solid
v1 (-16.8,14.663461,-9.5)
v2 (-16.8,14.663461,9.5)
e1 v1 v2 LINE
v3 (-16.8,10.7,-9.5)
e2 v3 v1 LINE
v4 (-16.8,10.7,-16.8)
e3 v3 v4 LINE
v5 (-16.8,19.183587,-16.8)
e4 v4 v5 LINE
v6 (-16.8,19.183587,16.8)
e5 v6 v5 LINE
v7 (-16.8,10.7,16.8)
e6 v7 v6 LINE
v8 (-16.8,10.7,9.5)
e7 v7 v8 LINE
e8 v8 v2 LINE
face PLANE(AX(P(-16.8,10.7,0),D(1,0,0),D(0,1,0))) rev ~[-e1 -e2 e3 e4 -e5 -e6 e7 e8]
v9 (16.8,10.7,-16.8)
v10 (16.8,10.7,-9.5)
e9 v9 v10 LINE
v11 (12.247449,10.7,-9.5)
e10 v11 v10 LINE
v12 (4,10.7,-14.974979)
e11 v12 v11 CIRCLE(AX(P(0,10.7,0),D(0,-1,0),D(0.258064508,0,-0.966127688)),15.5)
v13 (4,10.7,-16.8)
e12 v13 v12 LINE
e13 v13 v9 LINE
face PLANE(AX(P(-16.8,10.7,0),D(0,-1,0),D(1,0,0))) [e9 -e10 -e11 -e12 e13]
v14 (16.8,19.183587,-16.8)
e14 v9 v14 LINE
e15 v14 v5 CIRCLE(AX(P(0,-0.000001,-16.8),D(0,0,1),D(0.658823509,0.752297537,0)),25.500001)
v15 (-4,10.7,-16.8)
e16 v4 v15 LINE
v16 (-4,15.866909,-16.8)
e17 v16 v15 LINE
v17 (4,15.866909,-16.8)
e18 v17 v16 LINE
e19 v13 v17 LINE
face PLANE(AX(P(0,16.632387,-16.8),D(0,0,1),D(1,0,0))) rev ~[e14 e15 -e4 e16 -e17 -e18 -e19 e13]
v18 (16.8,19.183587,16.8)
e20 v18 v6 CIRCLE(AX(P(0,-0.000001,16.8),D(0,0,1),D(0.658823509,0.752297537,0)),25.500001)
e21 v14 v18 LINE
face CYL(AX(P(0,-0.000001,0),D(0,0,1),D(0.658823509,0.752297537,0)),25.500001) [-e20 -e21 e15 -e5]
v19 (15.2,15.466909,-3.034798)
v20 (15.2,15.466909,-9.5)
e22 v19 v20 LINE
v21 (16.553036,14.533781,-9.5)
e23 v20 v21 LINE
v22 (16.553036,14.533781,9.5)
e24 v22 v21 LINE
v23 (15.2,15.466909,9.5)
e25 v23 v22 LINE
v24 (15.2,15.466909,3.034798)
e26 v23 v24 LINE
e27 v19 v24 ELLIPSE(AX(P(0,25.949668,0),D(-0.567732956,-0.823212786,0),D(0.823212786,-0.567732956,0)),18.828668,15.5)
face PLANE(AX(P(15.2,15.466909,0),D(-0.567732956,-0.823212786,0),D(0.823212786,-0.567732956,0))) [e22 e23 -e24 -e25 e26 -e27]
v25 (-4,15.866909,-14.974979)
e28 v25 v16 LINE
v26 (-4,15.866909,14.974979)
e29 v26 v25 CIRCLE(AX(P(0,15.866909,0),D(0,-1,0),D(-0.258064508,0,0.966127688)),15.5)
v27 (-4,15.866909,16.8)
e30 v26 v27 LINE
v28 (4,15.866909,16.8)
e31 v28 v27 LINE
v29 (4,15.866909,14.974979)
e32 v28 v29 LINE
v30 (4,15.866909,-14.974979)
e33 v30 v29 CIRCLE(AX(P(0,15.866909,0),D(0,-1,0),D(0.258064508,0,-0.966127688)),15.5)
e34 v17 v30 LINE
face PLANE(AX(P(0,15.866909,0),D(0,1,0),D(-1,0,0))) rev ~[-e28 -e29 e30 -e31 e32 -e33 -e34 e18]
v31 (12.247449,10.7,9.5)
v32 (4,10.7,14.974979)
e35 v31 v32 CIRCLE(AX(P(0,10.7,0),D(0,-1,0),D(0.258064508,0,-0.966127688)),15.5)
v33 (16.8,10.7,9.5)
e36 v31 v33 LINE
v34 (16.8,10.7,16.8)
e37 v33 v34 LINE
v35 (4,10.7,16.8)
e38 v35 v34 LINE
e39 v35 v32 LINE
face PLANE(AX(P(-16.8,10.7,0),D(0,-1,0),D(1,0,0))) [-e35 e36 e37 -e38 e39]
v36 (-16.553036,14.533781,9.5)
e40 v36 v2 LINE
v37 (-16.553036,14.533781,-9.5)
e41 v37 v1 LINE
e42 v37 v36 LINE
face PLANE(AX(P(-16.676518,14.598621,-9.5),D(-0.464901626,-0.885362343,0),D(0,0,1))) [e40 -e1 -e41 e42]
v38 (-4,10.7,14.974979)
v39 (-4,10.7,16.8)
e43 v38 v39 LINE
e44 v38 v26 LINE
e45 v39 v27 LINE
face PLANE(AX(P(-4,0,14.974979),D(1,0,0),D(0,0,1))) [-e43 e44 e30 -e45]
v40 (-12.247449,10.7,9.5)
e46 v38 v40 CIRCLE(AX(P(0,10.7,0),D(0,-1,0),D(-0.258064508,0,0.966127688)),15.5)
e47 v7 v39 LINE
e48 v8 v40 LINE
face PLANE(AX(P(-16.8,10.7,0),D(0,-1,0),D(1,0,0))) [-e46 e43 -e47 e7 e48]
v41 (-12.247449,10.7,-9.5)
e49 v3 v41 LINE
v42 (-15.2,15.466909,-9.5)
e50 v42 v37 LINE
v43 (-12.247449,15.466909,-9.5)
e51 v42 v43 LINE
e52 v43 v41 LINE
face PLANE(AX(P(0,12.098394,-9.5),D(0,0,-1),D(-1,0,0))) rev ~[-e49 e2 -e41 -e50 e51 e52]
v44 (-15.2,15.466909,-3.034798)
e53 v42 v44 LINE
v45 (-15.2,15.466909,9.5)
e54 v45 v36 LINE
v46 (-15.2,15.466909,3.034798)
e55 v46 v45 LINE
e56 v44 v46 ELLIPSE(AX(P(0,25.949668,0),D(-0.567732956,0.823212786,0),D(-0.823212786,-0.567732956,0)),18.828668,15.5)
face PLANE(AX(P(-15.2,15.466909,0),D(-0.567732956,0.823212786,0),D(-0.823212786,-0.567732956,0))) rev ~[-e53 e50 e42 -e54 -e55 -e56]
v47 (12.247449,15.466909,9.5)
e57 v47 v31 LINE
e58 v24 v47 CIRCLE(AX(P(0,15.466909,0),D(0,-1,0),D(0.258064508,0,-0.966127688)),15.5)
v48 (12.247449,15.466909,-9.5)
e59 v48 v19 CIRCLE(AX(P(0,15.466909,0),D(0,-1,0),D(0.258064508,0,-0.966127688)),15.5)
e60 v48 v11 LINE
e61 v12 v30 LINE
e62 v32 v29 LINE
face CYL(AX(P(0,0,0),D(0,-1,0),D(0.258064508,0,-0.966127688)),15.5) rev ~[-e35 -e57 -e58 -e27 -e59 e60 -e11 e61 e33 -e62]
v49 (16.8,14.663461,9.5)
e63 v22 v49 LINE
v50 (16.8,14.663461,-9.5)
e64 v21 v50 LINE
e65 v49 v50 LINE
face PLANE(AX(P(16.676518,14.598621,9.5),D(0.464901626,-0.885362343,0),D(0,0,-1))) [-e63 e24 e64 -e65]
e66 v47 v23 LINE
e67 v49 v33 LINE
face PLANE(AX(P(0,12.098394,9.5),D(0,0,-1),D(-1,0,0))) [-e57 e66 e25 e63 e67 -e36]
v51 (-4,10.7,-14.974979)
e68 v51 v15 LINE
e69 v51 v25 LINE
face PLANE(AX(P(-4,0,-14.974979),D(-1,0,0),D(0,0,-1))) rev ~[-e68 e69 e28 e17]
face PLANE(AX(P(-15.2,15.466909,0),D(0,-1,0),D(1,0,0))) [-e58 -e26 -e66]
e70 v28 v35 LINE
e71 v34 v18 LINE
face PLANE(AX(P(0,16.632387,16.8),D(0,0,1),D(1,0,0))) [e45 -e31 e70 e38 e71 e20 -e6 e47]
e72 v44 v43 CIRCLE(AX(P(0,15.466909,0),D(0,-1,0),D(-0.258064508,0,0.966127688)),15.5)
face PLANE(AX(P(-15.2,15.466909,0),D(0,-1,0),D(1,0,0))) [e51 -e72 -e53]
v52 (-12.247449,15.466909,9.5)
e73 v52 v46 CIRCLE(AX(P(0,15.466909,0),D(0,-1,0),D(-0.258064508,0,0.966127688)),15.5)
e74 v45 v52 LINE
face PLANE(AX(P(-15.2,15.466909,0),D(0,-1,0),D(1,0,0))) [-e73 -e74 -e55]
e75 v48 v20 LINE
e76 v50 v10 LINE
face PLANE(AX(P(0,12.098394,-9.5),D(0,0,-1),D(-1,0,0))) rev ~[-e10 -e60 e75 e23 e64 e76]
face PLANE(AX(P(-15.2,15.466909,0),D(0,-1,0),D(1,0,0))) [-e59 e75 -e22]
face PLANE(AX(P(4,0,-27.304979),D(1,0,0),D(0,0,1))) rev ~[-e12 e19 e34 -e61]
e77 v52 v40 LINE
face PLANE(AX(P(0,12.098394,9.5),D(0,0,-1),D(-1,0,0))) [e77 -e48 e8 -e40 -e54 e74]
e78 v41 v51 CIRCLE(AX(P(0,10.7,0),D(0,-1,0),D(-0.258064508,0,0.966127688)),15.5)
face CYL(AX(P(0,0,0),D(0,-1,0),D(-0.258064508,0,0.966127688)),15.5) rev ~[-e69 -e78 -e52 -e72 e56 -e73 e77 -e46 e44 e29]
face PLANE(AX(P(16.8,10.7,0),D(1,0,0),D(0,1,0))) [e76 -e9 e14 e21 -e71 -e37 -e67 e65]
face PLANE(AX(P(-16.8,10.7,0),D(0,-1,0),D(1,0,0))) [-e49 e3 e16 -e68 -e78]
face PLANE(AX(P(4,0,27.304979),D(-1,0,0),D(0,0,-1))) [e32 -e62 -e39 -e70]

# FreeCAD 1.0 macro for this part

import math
import FreeCAD as App
import Part
import Sketcher
Q = App.Units.Quantity


def edges_at(feature, points):
    """Names of the edges that pass closest to the given points."""
    edges = feature.Shape.Edges
    near = lambda p: min(range(len(edges)), key=lambda i: edges[i].distToShape(Part.Vertex(*p))[0])
    return sorted({f"Edge{near(p) + 1}" for p in points})

doc = App.newDocument("Part")
body = doc.addObject("PartDesign::Body", "Body")

sketch1 = body.newObject("Sketcher::SketchObject", "Sketch")
sketch1.AttachmentSupport = (doc.getObject("XY_Plane"), [""])
sketch1.MapMode = "FlatFace"
sketch1.addGeometry([
    Part.LineSegment(App.Vector(-17, 11, 0), App.Vector(17, 11, 0)),
    Part.LineSegment(App.Vector(17, 11, 0), App.Vector(17, 19, 0)),
    Part.ArcOfCircle(Part.Circle(App.Vector(0, 0, 0), App.Vector(0, 0, 1), 26), math.radians(49), math.radians(131)),
    Part.LineSegment(App.Vector(-17, 19, 0), App.Vector(-17, 11, 0)),
], False)
sketch1.addConstraint([
    Sketcher.Constraint("Coincident", 0, 2, 1, 1),
    Sketcher.Constraint("Coincident", 1, 2, 2, 1),
    Sketcher.Constraint("Coincident", 2, 2, 3, 1),
    Sketcher.Constraint("Coincident", 3, 2, 0, 1),
    Sketcher.Constraint("Horizontal", 0),
    Sketcher.Constraint("Vertical", 1),
    Sketcher.Constraint("Vertical", 3),
    Sketcher.Constraint("Coincident", 2, 3, -1, 1),
    Sketcher.Constraint("Horizontal", 1, 2, 2, 2),
    Sketcher.Constraint("Radius", 2, Q("25.500001 mm")),
    Sketcher.Constraint("DistanceX", 0, 1, 0, 2, Q("33.6 mm")),
    Sketcher.Constraint("DistanceY", -1, 1, 0, 2, Q("10.7 mm")),
])
pad1 = body.newObject("PartDesign::Pad", "Pad")
pad1.Profile = sketch1
pad1.Type = "TwoLengths"
pad1.Length = 16.8
pad1.Length2 = 16.8

sketch2 = body.newObject("Sketcher::SketchObject", "Sketch001")
sketch2.AttachmentSupport = (doc.getObject("XY_Plane"), [""])
sketch2.MapMode = "FlatFace"
sketch2.addGeometry([
    Part.LineSegment(App.Vector(15.2, 15.466909, 0), App.Vector(-15.2, 15.466909, 0)),
    Part.LineSegment(App.Vector(-15.2, 15.466909, 0), App.Vector(-21, 11.466909, 0)),
    Part.LineSegment(App.Vector(-21, 11.466909, 0), App.Vector(-23, 11.466909, 0)),
    Part.ArcOfCircle(Part.Circle(App.Vector(-0.000205, 0.00009, 0), App.Vector(0, 0, 1), 25.699776), math.radians(153.500908), math.radians(160.764538)),
    Part.LineSegment(App.Vector(-24.265231, 8.466909, 0), App.Vector(-11, 10.5, 0)),
    Part.LineSegment(App.Vector(-11, 10.5, 0), App.Vector(11, 10.5, 0)),
    Part.LineSegment(App.Vector(11, 10.5, 0), App.Vector(24.265231, 8.466909, 0)),
    Part.ArcOfCircle(Part.Circle(App.Vector(0.000205, 0.00009, 0), App.Vector(0, 0, 1), 25.699776), math.radians(19.235462), math.radians(26.499092)),
    Part.LineSegment(App.Vector(23, 11.466909, 0), App.Vector(21, 11.466909, 0)),
    Part.LineSegment(App.Vector(21, 11.466909, 0), App.Vector(15.2, 15.466909, 0)),
], False)
sketch2.addConstraint([
    Sketcher.Constraint("Coincident", 0, 2, 1, 1),
    Sketcher.Constraint("Coincident", 1, 2, 2, 1),
    Sketcher.Constraint("Coincident", 2, 2, 3, 1),
    Sketcher.Constraint("Coincident", 3, 2, 4, 1),
    Sketcher.Constraint("Coincident", 4, 2, 5, 1),
    Sketcher.Constraint("Coincident", 5, 2, 6, 1),
    Sketcher.Constraint("Coincident", 6, 2, 7, 1),
    Sketcher.Constraint("Coincident", 7, 2, 8, 1),
    Sketcher.Constraint("Coincident", 8, 2, 9, 1),
    Sketcher.Constraint("Coincident", 9, 2, 0, 1),
    Sketcher.Constraint("Horizontal", 0),
    Sketcher.Constraint("Horizontal", 2),
    Sketcher.Constraint("Horizontal", 5),
    Sketcher.Constraint("Horizontal", 8),
    Sketcher.Constraint("Equal", 3, 7),
    Sketcher.Constraint("Symmetric", 3, 3, 7, 3, -2),
    Sketcher.Constraint("Symmetric", 1, 2, 8, 2, -2),
    Sketcher.Constraint("Horizontal", 3, 2, 6, 2),
    Sketcher.Constraint("Equal", 4, 6),
    Sketcher.Constraint("Equal", 1, 9),
    Sketcher.Constraint("DistanceX", 2, 2, 2, 1, Q("2 mm")),
    Sketcher.Constraint("DistanceX", 5, 1, 5, 2, Q("22 mm")),
    Sketcher.Constraint("DistanceX", 0, 2, 0, 1, Q("30.4 mm")),
    Sketcher.Constraint("DistanceX", 1, 2, -1, 1, Q("21 mm")),
    Sketcher.Constraint("DistanceY", 1, 2, 0, 2, Q("4 mm")),
    Sketcher.Constraint("DistanceY", 3, 2, 2, 2, Q("3 mm")),
    Sketcher.Constraint("DistanceY", -1, 1, 4, 2, Q("10.5 mm")),
    Sketcher.Constraint("Radius", 3, Q("25.699776 mm")),
    Sketcher.Constraint("DistanceY", -1, 1, 0, 2, Q("15.466909 mm")),
    Sketcher.Constraint("DistanceX", 3, 2, -1, 1, Q("24.265231 mm")),
])
pocket1 = body.newObject("PartDesign::Pocket", "Pocket")
pocket1.Profile = sketch2
pocket1.Type = "TwoLengths"
pocket1.Length = 9.5
pocket1.Length2 = 9.5
doc.recompute()

chamfer = body.newObject("PartDesign::Chamfer", "Chamfer")
chamfer.Base = (pocket1, edges_at(pocket1, [(-16.8, 14.363, 0), (16.8, 14.363, 0)]))
chamfer.Size = 0.3

sketch3 = body.newObject("Sketcher::SketchObject", "Sketch002")
sketch3.AttachmentSupport = (doc.getObject("XZ_Plane"), [""])
sketch3.MapMode = "FlatFace"
sketch3.addGeometry([
    Part.LineSegment(App.Vector(-4, 27, 0), App.Vector(-4, 15, 0)),
    Part.ArcOfCircle(Part.Circle(App.Vector(0, 0, 0), App.Vector(0, 0, 1), 15), math.radians(105), math.radians(255)),
    Part.LineSegment(App.Vector(-4, -15, 0), App.Vector(-4, -27, 0)),
    Part.LineSegment(App.Vector(-4, -27, 0), App.Vector(4, -27, 0)),
    Part.LineSegment(App.Vector(4, -27, 0), App.Vector(4, -15, 0)),
    Part.ArcOfCircle(Part.Circle(App.Vector(0, 0, 0), App.Vector(0, 0, 1), 15), math.radians(-75), math.radians(75)),
    Part.LineSegment(App.Vector(4, 15, 0), App.Vector(4, 27, 0)),
    Part.LineSegment(App.Vector(4, 27, 0), App.Vector(-4, 27, 0)),
], False)
sketch3.addConstraint([
    Sketcher.Constraint("Coincident", 0, 2, 1, 1),
    Sketcher.Constraint("Coincident", 1, 2, 2, 1),
    Sketcher.Constraint("Coincident", 2, 2, 3, 1),
    Sketcher.Constraint("Coincident", 3, 2, 4, 1),
    Sketcher.Constraint("Coincident", 4, 2, 5, 1),
    Sketcher.Constraint("Coincident", 5, 2, 6, 1),
    Sketcher.Constraint("Coincident", 6, 2, 7, 1),
    Sketcher.Constraint("Coincident", 7, 2, 0, 1),
    Sketcher.Constraint("Vertical", 0),
    Sketcher.Constraint("Vertical", 2),
    Sketcher.Constraint("Horizontal", 3),
    Sketcher.Constraint("Vertical", 4),
    Sketcher.Constraint("Vertical", 6),
    Sketcher.Constraint("Horizontal", 7),
    Sketcher.Constraint("Coincident", 1, 3, -1, 1),
    Sketcher.Constraint("Coincident", 5, 3, -1, 1),
    Sketcher.Constraint("Equal", 1, 5),
    Sketcher.Constraint("Symmetric", 2, 2, 6, 2, -1, 1),
    Sketcher.Constraint("Horizontal", 1, 2, 4, 2),
    Sketcher.Constraint("Horizontal", 0, 2, 5, 2),
    Sketcher.Constraint("Radius", 1, Q("15.5 mm")),
    Sketcher.Constraint("DistanceX", 3, 1, 3, 2, Q("8 mm")),
    Sketcher.Constraint("DistanceY", 0, 2, 0, 1, Q("12.33 mm")),
])
pocket2 = body.newObject("PartDesign::Pocket", "Pocket001")
pocket2.Profile = sketch3
pocket2.Length = 15.866909

doc.recompute()
